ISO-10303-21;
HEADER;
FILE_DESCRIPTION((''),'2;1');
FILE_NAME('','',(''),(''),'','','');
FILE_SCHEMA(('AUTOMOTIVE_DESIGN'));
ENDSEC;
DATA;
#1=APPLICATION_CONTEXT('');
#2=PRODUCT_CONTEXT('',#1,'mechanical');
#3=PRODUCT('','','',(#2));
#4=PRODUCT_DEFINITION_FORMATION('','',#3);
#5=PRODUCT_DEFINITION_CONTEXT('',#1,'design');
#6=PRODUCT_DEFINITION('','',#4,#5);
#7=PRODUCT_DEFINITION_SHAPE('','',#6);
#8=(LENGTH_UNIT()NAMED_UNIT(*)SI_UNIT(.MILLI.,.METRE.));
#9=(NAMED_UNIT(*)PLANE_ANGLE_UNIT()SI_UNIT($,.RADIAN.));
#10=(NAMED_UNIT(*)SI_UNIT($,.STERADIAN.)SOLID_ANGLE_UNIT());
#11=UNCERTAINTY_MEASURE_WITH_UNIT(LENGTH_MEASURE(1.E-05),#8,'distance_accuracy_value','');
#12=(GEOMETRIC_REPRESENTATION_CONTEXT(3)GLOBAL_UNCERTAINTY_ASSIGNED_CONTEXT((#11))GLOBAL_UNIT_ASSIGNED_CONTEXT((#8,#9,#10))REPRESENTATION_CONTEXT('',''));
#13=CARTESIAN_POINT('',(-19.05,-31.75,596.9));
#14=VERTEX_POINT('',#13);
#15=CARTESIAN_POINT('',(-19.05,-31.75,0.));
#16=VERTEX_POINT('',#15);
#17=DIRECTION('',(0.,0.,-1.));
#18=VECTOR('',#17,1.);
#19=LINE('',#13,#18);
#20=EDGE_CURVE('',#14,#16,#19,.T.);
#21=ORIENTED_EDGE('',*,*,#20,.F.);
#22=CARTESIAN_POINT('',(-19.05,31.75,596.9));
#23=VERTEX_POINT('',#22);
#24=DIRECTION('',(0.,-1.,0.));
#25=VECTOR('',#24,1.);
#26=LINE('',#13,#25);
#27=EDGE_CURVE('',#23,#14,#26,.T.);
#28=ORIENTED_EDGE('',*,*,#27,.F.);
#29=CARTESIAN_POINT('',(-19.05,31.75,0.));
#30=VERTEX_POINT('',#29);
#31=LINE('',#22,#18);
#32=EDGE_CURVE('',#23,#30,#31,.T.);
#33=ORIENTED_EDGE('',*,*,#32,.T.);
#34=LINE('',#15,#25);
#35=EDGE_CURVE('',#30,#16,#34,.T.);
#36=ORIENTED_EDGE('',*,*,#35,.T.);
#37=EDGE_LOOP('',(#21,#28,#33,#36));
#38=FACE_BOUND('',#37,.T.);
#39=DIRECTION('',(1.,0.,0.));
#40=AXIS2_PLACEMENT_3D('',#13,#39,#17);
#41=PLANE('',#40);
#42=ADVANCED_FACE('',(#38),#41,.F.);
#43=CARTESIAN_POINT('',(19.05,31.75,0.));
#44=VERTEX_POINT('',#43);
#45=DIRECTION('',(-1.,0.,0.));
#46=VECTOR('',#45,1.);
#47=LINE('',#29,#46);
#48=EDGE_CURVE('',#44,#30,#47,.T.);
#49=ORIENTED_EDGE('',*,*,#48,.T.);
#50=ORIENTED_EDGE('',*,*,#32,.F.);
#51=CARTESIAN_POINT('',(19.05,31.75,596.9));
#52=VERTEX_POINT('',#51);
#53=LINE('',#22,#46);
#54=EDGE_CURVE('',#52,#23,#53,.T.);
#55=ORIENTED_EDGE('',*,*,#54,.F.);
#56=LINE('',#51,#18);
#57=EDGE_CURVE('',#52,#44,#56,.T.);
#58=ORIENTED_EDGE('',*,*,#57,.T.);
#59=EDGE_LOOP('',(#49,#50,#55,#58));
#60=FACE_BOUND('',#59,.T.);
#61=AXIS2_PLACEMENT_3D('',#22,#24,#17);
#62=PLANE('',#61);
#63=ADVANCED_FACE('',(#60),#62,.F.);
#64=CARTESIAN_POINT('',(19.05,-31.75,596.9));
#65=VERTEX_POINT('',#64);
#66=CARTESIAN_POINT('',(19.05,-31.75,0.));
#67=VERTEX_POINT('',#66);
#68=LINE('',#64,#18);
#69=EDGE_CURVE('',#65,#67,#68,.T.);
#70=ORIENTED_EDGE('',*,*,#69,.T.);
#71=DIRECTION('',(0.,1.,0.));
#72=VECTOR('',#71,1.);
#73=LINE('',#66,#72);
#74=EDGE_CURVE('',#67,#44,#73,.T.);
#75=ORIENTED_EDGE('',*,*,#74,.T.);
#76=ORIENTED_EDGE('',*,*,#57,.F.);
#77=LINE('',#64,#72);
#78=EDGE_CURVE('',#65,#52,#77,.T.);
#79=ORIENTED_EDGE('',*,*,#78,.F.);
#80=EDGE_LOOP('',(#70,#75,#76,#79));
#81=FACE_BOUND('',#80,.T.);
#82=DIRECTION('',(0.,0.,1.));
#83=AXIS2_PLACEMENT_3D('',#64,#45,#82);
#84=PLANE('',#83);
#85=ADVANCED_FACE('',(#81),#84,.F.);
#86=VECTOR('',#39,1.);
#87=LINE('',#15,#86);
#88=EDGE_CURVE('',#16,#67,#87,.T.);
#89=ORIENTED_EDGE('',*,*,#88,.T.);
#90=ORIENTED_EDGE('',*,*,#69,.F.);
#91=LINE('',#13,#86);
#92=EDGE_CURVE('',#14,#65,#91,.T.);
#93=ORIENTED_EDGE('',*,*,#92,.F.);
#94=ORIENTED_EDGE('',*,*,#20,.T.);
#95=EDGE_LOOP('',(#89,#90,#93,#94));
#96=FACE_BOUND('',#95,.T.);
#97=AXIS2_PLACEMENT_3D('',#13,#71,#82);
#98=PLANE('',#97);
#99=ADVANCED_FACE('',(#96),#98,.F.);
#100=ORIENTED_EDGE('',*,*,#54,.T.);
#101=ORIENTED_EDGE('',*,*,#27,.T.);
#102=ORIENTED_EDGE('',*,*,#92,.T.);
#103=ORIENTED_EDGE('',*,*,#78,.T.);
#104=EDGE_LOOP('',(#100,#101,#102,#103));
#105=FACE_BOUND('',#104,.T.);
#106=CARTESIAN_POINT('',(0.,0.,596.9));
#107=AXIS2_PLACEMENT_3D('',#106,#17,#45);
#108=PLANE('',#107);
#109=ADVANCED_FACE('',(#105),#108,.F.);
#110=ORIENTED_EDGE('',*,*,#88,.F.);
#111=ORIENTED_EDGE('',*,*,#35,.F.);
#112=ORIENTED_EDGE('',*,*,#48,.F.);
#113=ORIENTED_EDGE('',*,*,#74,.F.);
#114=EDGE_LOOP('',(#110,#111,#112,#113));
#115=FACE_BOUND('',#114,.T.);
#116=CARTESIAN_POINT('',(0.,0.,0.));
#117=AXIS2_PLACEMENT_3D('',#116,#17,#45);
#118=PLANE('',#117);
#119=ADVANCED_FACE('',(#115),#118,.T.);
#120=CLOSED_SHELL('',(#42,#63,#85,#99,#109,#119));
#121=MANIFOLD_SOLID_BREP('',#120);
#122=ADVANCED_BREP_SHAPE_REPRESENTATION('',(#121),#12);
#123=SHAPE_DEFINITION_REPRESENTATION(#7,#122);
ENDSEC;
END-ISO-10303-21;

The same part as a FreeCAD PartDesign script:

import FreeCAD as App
import Part
import Sketcher
from FreeCAD import Vector
Q = App.Units.Quantity

doc = App.newDocument("Part")
body = doc.addObject("PartDesign::Body", "Body")

sketch1 = doc.addObject("Sketcher::SketchObject", "Sketch")
body.addObject(sketch1)
sketch1.AttachmentSupport = (doc.XY_Plane, [""])
sketch1.MapMode = "FlatFace"
sketch1.addGeometry([
    Part.LineSegment(Vector(-19, 32, 0), Vector(-19, -32, 0)),
    Part.LineSegment(Vector(-19, -32, 0), Vector(19, -32, 0)),
    Part.LineSegment(Vector(19, -32, 0), Vector(19, 32, 0)),
    Part.LineSegment(Vector(19, 32, 0), Vector(-19, 32, 0)),
], False)
sketch1.addConstraint([
    Sketcher.Constraint("Coincident", 0, 2, 1, 1),
    Sketcher.Constraint("Coincident", 1, 2, 2, 1),
    Sketcher.Constraint("Coincident", 2, 2, 3, 1),
    Sketcher.Constraint("Coincident", 3, 2, 0, 1),
    Sketcher.Constraint("Vertical", 0),
    Sketcher.Constraint("Horizontal", 1),
    Sketcher.Constraint("Vertical", 2),
    Sketcher.Constraint("Horizontal", 3),
    Sketcher.Constraint("Symmetric", 0, 2, 2, 2, -1, 1),
    Sketcher.Constraint("DistanceX", 1, 1, 1, 2, Q("1.5 in")),
    Sketcher.Constraint("DistanceY", 0, 2, 0, 1, Q("2.5 in")),
])
pad1 = doc.addObject("PartDesign::Pad", "Pad")
body.addObject(pad1)
pad1.Profile = sketch1
pad1.Length = Q("23.5 in")

doc.recompute()
